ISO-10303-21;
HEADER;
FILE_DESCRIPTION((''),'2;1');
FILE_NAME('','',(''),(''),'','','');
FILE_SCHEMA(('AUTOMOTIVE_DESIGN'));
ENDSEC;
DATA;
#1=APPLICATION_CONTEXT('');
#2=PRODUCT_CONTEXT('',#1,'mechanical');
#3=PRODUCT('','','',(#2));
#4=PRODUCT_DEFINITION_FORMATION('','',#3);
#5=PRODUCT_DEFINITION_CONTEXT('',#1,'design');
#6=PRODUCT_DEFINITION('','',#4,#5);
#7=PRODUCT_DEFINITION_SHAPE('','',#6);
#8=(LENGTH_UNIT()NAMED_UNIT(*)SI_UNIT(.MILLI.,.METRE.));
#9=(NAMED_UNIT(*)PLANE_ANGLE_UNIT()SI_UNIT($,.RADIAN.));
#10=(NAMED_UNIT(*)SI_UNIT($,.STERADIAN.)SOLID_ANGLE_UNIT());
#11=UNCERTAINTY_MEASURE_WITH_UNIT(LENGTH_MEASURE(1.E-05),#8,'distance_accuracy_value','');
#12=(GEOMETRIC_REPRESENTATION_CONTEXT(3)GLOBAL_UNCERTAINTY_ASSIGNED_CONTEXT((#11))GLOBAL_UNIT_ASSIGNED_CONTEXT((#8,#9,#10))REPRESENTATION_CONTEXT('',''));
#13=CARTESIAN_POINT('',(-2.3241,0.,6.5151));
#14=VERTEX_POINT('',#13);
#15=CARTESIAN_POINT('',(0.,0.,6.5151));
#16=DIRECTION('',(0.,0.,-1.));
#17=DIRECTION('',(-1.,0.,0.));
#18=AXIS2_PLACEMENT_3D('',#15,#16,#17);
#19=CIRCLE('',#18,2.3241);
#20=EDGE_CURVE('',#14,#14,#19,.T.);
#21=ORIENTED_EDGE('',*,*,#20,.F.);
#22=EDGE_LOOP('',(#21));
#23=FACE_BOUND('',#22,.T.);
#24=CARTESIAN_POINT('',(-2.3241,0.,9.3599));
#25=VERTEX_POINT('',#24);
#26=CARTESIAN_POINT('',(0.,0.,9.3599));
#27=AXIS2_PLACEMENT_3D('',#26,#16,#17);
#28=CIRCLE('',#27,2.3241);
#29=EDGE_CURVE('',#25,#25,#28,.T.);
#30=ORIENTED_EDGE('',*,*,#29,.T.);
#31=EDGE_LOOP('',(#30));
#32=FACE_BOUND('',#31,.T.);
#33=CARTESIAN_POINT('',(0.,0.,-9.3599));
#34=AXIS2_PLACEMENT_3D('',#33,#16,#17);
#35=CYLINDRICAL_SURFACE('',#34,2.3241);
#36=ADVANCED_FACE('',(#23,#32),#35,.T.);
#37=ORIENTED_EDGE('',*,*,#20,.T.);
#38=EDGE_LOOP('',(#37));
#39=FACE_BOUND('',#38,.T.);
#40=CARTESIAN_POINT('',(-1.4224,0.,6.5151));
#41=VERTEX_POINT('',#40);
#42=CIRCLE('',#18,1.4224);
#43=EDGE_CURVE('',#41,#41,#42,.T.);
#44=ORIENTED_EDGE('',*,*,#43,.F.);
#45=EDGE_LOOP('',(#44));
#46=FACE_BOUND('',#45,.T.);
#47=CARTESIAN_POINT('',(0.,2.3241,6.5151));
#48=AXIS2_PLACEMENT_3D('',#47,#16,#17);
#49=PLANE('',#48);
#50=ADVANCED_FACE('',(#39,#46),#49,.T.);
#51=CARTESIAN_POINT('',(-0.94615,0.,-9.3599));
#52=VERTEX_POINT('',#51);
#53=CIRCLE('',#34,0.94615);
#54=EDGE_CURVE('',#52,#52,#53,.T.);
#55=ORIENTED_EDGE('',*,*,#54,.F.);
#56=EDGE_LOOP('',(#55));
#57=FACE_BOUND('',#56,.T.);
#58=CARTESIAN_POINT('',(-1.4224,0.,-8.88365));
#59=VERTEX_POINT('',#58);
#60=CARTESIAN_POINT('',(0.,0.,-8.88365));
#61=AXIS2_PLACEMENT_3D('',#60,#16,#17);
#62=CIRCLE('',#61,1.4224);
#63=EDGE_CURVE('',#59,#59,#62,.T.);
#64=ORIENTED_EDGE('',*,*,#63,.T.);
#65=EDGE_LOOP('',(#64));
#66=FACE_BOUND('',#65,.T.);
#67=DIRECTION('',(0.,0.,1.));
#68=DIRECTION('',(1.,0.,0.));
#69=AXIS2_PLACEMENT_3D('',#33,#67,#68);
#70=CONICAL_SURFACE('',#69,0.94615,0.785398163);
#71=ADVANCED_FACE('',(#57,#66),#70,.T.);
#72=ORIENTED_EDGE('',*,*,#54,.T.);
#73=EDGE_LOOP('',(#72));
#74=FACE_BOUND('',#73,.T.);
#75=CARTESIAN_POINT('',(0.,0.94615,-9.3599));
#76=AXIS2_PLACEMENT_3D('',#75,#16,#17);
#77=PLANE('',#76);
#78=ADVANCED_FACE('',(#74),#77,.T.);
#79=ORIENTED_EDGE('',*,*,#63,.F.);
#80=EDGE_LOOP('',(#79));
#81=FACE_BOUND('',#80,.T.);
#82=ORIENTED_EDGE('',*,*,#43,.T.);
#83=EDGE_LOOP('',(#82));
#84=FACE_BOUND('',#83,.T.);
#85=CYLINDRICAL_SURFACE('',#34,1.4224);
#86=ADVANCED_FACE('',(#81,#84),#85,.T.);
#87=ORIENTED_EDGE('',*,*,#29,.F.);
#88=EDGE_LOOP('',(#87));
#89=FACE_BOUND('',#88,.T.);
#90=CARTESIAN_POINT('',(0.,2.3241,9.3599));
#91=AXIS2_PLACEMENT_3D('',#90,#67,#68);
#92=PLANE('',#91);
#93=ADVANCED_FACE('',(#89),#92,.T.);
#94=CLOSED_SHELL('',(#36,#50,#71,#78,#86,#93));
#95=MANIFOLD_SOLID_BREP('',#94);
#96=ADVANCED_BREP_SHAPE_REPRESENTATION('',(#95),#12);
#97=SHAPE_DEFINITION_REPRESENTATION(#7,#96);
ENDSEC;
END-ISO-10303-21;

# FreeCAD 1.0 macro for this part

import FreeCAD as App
import Part
import Sketcher

V = App.Vector
Q = App.Units.Quantity

doc = App.newDocument("Part")
body = doc.addObject("PartDesign::Body", "Body")

# Sketch on YZ plane
sketch1 = body.newObject("Sketcher::SketchObject", "Sketch")
sketch1.AttachmentSupport = (doc.getObject("YZ_Plane"), [""])
sketch1.MapMode = "FlatFace"
sketch1.addGeometry(Part.LineSegment(V(0.9, -9.4, 0), V(1.4, -8.9, 0)), False)
sketch1.addGeometry(Part.LineSegment(V(1.4, -8.9, 0), V(1.4, 6.5, 0)), False)
sketch1.addGeometry(Part.LineSegment(V(1.4, 6.5, 0), V(2.3, 6.5, 0)), False)
sketch1.addGeometry(Part.LineSegment(V(2.3, 6.5, 0), V(2.3, 9.4, 0)), False)
sketch1.addGeometry(Part.LineSegment(V(2.3, 9.4, 0), V(0, 9.4, 0)), False)
sketch1.addGeometry(Part.LineSegment(V(0, 9.4, 0), V(0, -9.4, 0)), False)
sketch1.addGeometry(Part.LineSegment(V(0, -9.4, 0), V(0.9, -9.4, 0)), False)
sketch1.addConstraint(Sketcher.Constraint("Coincident", 0, 2, 1, 1))
sketch1.addConstraint(Sketcher.Constraint("Coincident", 1, 2, 2, 1))
sketch1.addConstraint(Sketcher.Constraint("Coincident", 2, 2, 3, 1))
sketch1.addConstraint(Sketcher.Constraint("Coincident", 3, 2, 4, 1))
sketch1.addConstraint(Sketcher.Constraint("Coincident", 4, 2, 5, 1))
sketch1.addConstraint(Sketcher.Constraint("Coincident", 5, 2, 6, 1))
sketch1.addConstraint(Sketcher.Constraint("Coincident", 6, 2, 0, 1))
sketch1.addConstraint(Sketcher.Constraint("Vertical", 1))
sketch1.addConstraint(Sketcher.Constraint("Horizontal", 2))
sketch1.addConstraint(Sketcher.Constraint("Vertical", 3))
sketch1.addConstraint(Sketcher.Constraint("Horizontal", 4))
sketch1.addConstraint(Sketcher.Constraint("Vertical", 5))
sketch1.addConstraint(Sketcher.Constraint("Horizontal", 6))
sketch1.addConstraint(Sketcher.Constraint("Symmetric", 4, 2, 5, 2, -1, 1))
sketch1.addConstraint(Sketcher.Constraint("Angle", 0, Q("45 deg")))
sketch1.addConstraint(Sketcher.Constraint("DistanceY", 3, 1, 3, 2, Q("0.112 in")))
sketch1.addConstraint(Sketcher.Constraint("DistanceY", 5, 2, 5, 1, Q("0.737 in")))
sketch1.addConstraint(Sketcher.Constraint("DistanceX", 2, 1, 2, 2, Q("0.0355 in")))
sketch1.addConstraint(Sketcher.Constraint("DistanceX", 4, 2, 4, 1, Q("0.0915 in")))
sketch1.addConstraint(Sketcher.Constraint("DistanceX", 6, 1, 6, 2, Q("0.94615 mm")))
revolution = body.newObject("PartDesign::Revolution", "Revolution")
revolution.Profile = sketch1
revolution.ReferenceAxis = (sketch1, ["V_Axis"])
revolution.Angle = 360

doc.recompute()
